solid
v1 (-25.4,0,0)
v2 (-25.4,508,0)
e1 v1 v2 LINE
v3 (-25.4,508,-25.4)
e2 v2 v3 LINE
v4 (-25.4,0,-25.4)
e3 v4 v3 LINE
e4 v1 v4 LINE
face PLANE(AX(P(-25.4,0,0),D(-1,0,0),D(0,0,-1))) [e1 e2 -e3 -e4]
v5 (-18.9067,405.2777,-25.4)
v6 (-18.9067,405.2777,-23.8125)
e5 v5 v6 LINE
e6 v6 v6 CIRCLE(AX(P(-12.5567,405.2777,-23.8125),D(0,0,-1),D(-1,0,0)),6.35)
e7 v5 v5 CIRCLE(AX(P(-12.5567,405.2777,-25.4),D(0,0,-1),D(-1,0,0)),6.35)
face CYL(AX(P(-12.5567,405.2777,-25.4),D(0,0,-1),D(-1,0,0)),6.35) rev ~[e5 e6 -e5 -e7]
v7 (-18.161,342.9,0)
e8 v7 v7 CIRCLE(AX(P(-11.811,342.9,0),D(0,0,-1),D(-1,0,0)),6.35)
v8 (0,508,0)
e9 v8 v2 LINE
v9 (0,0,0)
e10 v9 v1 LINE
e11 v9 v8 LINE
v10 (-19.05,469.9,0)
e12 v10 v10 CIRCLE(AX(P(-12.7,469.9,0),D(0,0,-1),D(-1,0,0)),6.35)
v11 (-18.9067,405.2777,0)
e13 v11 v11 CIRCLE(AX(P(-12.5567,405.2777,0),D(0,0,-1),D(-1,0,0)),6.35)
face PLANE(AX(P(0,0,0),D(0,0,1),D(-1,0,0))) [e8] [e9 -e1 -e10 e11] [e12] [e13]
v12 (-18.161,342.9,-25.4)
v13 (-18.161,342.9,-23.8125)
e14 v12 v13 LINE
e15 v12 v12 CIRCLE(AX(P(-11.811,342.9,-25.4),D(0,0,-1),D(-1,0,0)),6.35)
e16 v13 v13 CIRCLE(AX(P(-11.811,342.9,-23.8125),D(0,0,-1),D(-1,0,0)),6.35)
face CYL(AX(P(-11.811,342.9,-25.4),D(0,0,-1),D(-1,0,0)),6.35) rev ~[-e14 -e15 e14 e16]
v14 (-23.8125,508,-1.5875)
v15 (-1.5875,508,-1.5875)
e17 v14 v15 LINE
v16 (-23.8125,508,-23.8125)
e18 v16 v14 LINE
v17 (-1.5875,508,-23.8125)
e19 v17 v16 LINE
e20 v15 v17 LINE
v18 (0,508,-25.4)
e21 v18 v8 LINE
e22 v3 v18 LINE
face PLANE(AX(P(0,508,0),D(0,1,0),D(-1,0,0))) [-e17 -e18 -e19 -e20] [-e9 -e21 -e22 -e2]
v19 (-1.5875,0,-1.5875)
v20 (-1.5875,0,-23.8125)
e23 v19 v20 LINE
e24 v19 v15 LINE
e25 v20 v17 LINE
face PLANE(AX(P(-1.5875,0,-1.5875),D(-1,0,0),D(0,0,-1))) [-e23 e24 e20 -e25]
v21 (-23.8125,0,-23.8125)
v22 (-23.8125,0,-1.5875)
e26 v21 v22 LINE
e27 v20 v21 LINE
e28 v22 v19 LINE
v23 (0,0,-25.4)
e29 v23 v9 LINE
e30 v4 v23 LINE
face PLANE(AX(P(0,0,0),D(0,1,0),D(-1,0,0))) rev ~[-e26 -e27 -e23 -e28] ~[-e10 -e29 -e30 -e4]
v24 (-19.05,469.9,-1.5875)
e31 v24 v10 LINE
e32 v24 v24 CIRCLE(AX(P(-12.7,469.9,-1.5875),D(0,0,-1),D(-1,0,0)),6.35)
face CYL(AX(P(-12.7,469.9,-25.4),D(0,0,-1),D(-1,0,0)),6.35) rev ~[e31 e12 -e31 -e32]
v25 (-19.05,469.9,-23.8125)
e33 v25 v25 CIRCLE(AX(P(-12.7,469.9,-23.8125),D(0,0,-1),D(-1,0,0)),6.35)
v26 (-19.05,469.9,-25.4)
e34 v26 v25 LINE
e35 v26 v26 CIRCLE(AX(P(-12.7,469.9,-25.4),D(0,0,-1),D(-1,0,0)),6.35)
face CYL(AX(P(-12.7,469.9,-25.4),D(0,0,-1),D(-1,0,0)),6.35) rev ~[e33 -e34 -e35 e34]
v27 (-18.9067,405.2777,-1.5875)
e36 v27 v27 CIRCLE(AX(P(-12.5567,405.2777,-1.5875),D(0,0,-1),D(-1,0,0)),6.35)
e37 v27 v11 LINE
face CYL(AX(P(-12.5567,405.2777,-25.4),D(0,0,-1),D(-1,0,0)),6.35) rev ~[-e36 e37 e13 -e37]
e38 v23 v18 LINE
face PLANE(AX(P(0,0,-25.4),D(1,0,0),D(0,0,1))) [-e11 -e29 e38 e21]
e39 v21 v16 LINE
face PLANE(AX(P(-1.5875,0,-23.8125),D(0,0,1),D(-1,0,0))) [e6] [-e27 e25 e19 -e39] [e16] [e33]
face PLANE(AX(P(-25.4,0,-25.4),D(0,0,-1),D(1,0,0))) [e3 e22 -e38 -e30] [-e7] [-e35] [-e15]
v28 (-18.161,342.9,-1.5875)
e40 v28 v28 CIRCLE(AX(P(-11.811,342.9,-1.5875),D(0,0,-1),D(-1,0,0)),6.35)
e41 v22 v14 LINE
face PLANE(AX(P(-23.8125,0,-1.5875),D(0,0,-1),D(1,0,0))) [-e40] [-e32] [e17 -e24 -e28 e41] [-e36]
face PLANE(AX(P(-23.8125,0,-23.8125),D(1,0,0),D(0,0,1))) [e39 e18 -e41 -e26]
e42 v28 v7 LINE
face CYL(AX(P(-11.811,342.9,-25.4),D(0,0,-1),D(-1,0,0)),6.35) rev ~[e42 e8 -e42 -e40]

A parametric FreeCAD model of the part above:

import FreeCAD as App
import Part
import Sketcher
Q = App.Units.Quantity


def add_polygon(sketch, points):
    """Adds a closed chain of lines whose ends are joined by coincident constraints."""
    first, n = sketch.GeometryCount, len(points)
    for a, b in zip(points, points[1:] + points[:1]):
        sketch.addGeometry(Part.LineSegment(App.Vector(*a, 0), App.Vector(*b, 0)), False)
    for i in range(n):
        sketch.addConstraint(Sketcher.Constraint("Coincident", first + i, 2, first + (i + 1) % n, 1))

doc = App.newDocument("Part")
body = doc.addObject("PartDesign::Body", "Body")

# Sketch on XZ plane
sketch1 = body.newObject("Sketcher::SketchObject", "Sketch")
sketch1.AttachmentSupport = (doc.getObject("XZ_Plane"), [""])
sketch1.MapMode = "FlatFace"
add_polygon(sketch1, [(-25, 0), (0, 0), (0, -25), (-25, -25)])  # lines 0-3
add_polygon(sketch1, [(-24, -2), (-24, -24), (-2, -24), (-2, -2)])  # lines 4-7
sketch1.addConstraint([
    Sketcher.Constraint("Horizontal", 0),
    Sketcher.Constraint("Vertical", 1),
    Sketcher.Constraint("Horizontal", 2),
    Sketcher.Constraint("Vertical", 3),
    Sketcher.Constraint("Vertical", 4),
    Sketcher.Constraint("Horizontal", 5),
    Sketcher.Constraint("Vertical", 6),
    Sketcher.Constraint("Horizontal", 7),
    Sketcher.Constraint("Coincident", 0, 2, -1, 1),
    Sketcher.Constraint("Equal", 2, 1),
    Sketcher.Constraint("Equal", 7, 4),
    Sketcher.Constraint("DistanceX", 0, 1, 0, 2, Q("1 in")),
    Sketcher.Constraint("DistanceX", 5, 2, -1, 1, Q("0.0625 in")),
    Sketcher.Constraint("DistanceY", 6, 2, -1, 1, Q("0.0625 in")),
    Sketcher.Constraint("DistanceX", 2, 2, 4, 2, Q("0.0625 in")),
])
pad1 = body.newObject("PartDesign::Pad", "Pad")
pad1.Profile = sketch1
pad1.Length = Q("20 in")
pad1.Reversed = True

# Sketch on XY plane
sketch2 = body.newObject("Sketcher::SketchObject", "Sketch001")
sketch2.AttachmentSupport = (doc.getObject("XY_Plane"), [""])
sketch2.MapMode = "FlatFace"
sketch2.AttachmentOffset = App.Placement(App.Vector(0, 0, -1 * 25.4), App.Rotation())
sketch2.addGeometry(Part.Circle(App.Vector(-13, 470, 0), App.Vector(0, 0, 1), 6), False)
sketch2.addConstraint([
    Sketcher.Constraint("Diameter", 0, Q("0.5 in")),
    Sketcher.Constraint("DistanceX", 0, 3, -1, 1, Q("0.5 in")),
    Sketcher.Constraint("DistanceY", -1, 1, 0, 3, Q("18.5 in")),
])
pocket1 = body.newObject("PartDesign::Pocket", "Pocket")
pocket1.Profile = sketch2
pocket1.Length = Q("1 in")
pocket1.Reversed = True

# Sketch on XY plane
sketch3 = body.newObject("Sketcher::SketchObject", "Sketch002")
sketch3.AttachmentSupport = (doc.getObject("XY_Plane"), [""])
sketch3.MapMode = "FlatFace"
sketch3.AttachmentOffset = App.Placement(App.Vector(0, 0, -1 * 25.4), App.Rotation())
sketch3.addGeometry(Part.Circle(App.Vector(-12, 343, 0), App.Vector(0, 0, 1), 6), False)
sketch3.addConstraint([
    Sketcher.Constraint("Diameter", 0, Q("0.5 in")),
    Sketcher.Constraint("DistanceY", -1, 1, 0, 3, Q("13.5 in")),
    Sketcher.Constraint("DistanceX", 0, 3, -1, 1, Q("0.465 in")),
])
pocket2 = body.newObject("PartDesign::Pocket", "Pocket001")
pocket2.Profile = sketch3
pocket2.Length = Q("1 in")
pocket2.Reversed = True

# Sketch on XY plane
sketch4 = body.newObject("Sketcher::SketchObject", "Sketch003")
sketch4.AttachmentSupport = (doc.getObject("XY_Plane"), [""])
sketch4.MapMode = "FlatFace"
sketch4.AttachmentOffset = App.Placement(App.Vector(0, 0, -1 * 25.4), App.Rotation())
sketch4.addGeometry(Part.Circle(App.Vector(-13, 405, 0), App.Vector(0, 0, 1), 6), False)
sketch4.addConstraint([
    Sketcher.Constraint("Diameter", 0, Q("0.5 in")),
    Sketcher.Constraint("DistanceX", 0, 3, -1, 1, Q("12.5567 mm")),
    Sketcher.Constraint("DistanceY", -1, 1, 0, 3, Q("405.2777 mm")),
])
pocket3 = body.newObject("PartDesign::Pocket", "Pocket002")
pocket3.Profile = sketch4
pocket3.Length = Q("1 in")
pocket3.Reversed = True

doc.recompute()
